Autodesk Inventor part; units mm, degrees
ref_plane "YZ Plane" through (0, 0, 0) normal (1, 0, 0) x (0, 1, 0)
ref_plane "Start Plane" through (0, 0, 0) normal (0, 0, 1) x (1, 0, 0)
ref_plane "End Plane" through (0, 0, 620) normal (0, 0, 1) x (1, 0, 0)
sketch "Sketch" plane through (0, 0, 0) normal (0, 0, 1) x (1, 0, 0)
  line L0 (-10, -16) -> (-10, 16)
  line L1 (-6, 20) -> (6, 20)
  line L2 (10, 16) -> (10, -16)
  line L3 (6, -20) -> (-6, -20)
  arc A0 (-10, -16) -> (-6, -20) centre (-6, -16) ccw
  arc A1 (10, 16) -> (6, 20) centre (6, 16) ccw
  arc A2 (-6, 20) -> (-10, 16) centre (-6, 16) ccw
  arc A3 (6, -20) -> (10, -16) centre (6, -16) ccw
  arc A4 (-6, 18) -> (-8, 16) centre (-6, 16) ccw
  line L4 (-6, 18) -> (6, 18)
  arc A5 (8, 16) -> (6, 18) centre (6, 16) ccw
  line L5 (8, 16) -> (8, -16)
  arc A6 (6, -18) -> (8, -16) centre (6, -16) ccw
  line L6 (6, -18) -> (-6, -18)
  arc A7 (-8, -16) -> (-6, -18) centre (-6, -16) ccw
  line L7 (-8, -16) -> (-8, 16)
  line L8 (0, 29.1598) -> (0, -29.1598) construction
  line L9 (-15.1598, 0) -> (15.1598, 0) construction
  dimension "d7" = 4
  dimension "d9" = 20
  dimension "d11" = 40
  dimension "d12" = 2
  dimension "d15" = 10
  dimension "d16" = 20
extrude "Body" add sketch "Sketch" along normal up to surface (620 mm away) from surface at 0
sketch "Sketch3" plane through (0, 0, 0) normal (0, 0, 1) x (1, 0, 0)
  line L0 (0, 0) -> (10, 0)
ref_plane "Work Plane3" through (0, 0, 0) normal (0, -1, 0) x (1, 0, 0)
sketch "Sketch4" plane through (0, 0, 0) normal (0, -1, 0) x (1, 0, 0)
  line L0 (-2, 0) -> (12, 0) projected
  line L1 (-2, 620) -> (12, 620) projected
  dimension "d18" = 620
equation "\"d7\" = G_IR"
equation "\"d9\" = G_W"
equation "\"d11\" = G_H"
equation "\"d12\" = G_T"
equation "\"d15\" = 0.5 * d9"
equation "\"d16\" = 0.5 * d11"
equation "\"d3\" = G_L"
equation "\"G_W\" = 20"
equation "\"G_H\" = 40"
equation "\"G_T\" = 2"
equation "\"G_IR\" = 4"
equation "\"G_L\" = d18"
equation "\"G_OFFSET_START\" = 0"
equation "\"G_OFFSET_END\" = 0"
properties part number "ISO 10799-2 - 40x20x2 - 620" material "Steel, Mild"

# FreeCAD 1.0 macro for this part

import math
import FreeCAD as App
import Part
import Sketcher
from FreeCAD import Vector

doc = App.newDocument("Part")
params = doc.addObject("Spreadsheet::Sheet", "Params")
for row, (alias, value) in enumerate([
    ("sketch1_radius", "4 mm"),
    ("sketch1_radius2", "2 mm"),
    ("pad1_length", "620 mm"),
], start=1):
    params.set(f"A{row}", alias)
    params.set(f"B{row}", "=" + value)
    params.setAlias(f"B{row}", alias)

body = doc.addObject("PartDesign::Body", "Body")

# Sketch on XY plane
sketch1 = doc.addObject("Sketcher::SketchObject", "Sketch")
body.addObject(sketch1)
sketch1.AttachmentSupport = (doc.XY_Plane, [""])
sketch1.MapMode = "FlatFace"
sketch1.addGeometry([
    Part.LineSegment(Vector(-10, 16, 0), Vector(-10, -16, 0)),  # 0
    Part.ArcOfCircle(Part.Circle(Vector(-6, -16, 0), Vector(0, 0, 1), 4), math.radians(180), math.radians(270)),  # 1
    Part.LineSegment(Vector(-6, -20, 0), Vector(6, -20, 0)),  # 2
    Part.ArcOfCircle(Part.Circle(Vector(6, -16, 0), Vector(0, 0, 1), 4), math.radians(-90), math.radians(0)),  # 3
    Part.LineSegment(Vector(10, -16, 0), Vector(10, 16, 0)),  # 4
    Part.ArcOfCircle(Part.Circle(Vector(6, 16, 0), Vector(0, 0, 1), 4), math.radians(0), math.radians(90)),  # 5
    Part.LineSegment(Vector(6, 20, 0), Vector(-6, 20, 0)),  # 6
    Part.ArcOfCircle(Part.Circle(Vector(-6, 16, 0), Vector(0, 0, 1), 4), math.radians(90), math.radians(180)),  # 7
    Part.ArcOfCircle(Part.Circle(Vector(-6, 16, 0), Vector(0, 0, 1), 2), math.radians(90), math.radians(180)),  # 8
    Part.LineSegment(Vector(-6, 18, 0), Vector(6, 18, 0)),  # 9
    Part.ArcOfCircle(Part.Circle(Vector(6, 16, 0), Vector(0, 0, 1), 2), math.radians(0), math.radians(90)),  # 10
    Part.LineSegment(Vector(8, 16, 0), Vector(8, -16, 0)),  # 11
    Part.ArcOfCircle(Part.Circle(Vector(6, -16, 0), Vector(0, 0, 1), 2), math.radians(-90), math.radians(0)),  # 12
    Part.LineSegment(Vector(6, -18, 0), Vector(-6, -18, 0)),  # 13
    Part.ArcOfCircle(Part.Circle(Vector(-6, -16, 0), Vector(0, 0, 1), 2), math.radians(180), math.radians(270)),  # 14
    Part.LineSegment(Vector(-8, -16, 0), Vector(-8, 16, 0)),  # 15
], False)
sketch1.addConstraint([
    Sketcher.Constraint("Tangent", 0, 2, 1, 1),
    Sketcher.Constraint("Tangent", 1, 2, 2, 1),
    Sketcher.Constraint("Tangent", 2, 2, 3, 1),
    Sketcher.Constraint("Tangent", 3, 2, 4, 1),
    Sketcher.Constraint("Tangent", 4, 2, 5, 1),
    Sketcher.Constraint("Tangent", 5, 2, 6, 1),
    Sketcher.Constraint("Tangent", 6, 2, 7, 1),
    Sketcher.Constraint("Tangent", 7, 2, 0, 1),
    Sketcher.Constraint("Tangent", 8, 1, 9, 1),
    Sketcher.Constraint("Tangent", 9, 2, 10, 2),
    Sketcher.Constraint("Tangent", 10, 1, 11, 1),
    Sketcher.Constraint("Tangent", 11, 2, 12, 2),
    Sketcher.Constraint("Tangent", 12, 1, 13, 1),
    Sketcher.Constraint("Tangent", 13, 2, 14, 2),
    Sketcher.Constraint("Tangent", 14, 1, 15, 1),
    Sketcher.Constraint("Tangent", 15, 2, 8, 2),
    Sketcher.Constraint("Vertical", 0),
    Sketcher.Constraint("Horizontal", 2),
    Sketcher.Constraint("Vertical", 4),
    Sketcher.Constraint("Horizontal", 6),
    Sketcher.Constraint("Horizontal", 9),
    Sketcher.Constraint("Vertical", 11),
    Sketcher.Constraint("Horizontal", 13),
    Sketcher.Constraint("Vertical", 15),
    Sketcher.Constraint("Coincident", 8, 3, 7, 3),
    Sketcher.Constraint("Coincident", 10, 3, 5, 3),
    Sketcher.Constraint("Coincident", 12, 3, 3, 3),
    Sketcher.Constraint("Equal", 1, 3),
    Sketcher.Constraint("Equal", 3, 5),
    Sketcher.Constraint("Equal", 5, 7),
    Sketcher.Constraint("Equal", 12, 14),
    Sketcher.Constraint("Symmetric", 1, 3, 5, 3, -1, 1),
    Sketcher.Constraint("Radius", 1, 4.0),
    Sketcher.Constraint("Radius", 8, 2.0),
    Sketcher.Constraint("DistanceX", 0, 2, -1, 1, 10.0),
    Sketcher.Constraint("DistanceY", 1, 2, -1, 1, 20.0),
])
sketch1.setExpression("Constraints[32]", "Params.sketch1_radius")
sketch1.setExpression("Constraints[33]", "Params.sketch1_radius2")
pad1 = doc.addObject("PartDesign::Pad", "Pad")
body.addObject(pad1)
pad1.Profile = sketch1
pad1.setExpression("Length", "Params.pad1_length")

doc.recompute()
